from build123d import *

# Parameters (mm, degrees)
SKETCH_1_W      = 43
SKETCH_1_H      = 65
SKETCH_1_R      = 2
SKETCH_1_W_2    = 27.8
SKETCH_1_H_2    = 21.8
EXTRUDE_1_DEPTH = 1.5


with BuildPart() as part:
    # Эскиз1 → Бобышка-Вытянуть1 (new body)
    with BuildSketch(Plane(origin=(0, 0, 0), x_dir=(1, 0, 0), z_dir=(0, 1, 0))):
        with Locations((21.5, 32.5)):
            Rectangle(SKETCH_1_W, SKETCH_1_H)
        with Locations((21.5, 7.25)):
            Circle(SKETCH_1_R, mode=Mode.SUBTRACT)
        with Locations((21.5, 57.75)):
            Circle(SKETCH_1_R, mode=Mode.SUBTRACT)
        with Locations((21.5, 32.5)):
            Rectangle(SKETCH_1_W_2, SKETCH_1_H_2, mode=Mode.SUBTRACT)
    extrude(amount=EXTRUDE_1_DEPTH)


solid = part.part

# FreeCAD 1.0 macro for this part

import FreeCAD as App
import Part
import Sketcher

V = App.Vector
Q = App.Units.Quantity

doc = App.newDocument("Part")
params = doc.addObject("Spreadsheet::Sheet", "Params")
for row, (alias, value) in enumerate([
    ("sketch1_diameter", "4 mm"),
    ("sketch1_width", "43 mm"),
    ("sketch1_height", "65 mm"),
    ("sketch1_width2", "27.8 mm"),
    ("sketch1_height2", "21.8 mm"),
    ("pad1_length", "1.5 mm"),
], start=1):
    params.set(f"A{row}", alias)
    params.set(f"B{row}", "=" + value)
    params.setAlias(f"B{row}", alias)

body = doc.addObject("PartDesign::Body", "Body")

# Sketch on XZ plane
sketch1 = body.newObject("Sketcher::SketchObject", "Sketch")
sketch1.AttachmentSupport = (doc.getObject("XZ_Plane"), [""])
sketch1.MapMode = "FlatFace"
sketch1.addGeometry(Part.LineSegment(V(0, -65, 0), V(0, 0, 0)), False)
sketch1.addGeometry(Part.LineSegment(V(0, 0, 0), V(43, 0, 0)), False)
sketch1.addGeometry(Part.LineSegment(V(43, 0, 0), V(43, -65, 0)), False)
sketch1.addGeometry(Part.LineSegment(V(43, -65, 0), V(0, -65, 0)), False)
sketch1.addGeometry(Part.Circle(V(21.5, -7.2, 0), V(0, 0, 1), 2), False)
sketch1.addGeometry(Part.LineSegment(V(35.4, -21.6, 0), V(7.6, -21.6, 0)), False)
sketch1.addGeometry(Part.LineSegment(V(7.6, -21.6, 0), V(7.6, -43.4, 0)), False)
sketch1.addGeometry(Part.LineSegment(V(7.6, -43.4, 0), V(35.4, -43.4, 0)), False)
sketch1.addGeometry(Part.LineSegment(V(35.4, -43.4, 0), V(35.4, -21.6, 0)), False)
sketch1.addGeometry(Part.Circle(V(21.5, -57.8, 0), V(0, 0, 1), 2), False)
sketch1.addConstraint(Sketcher.Constraint("Coincident", 0, 2, 1, 1))
sketch1.addConstraint(Sketcher.Constraint("Coincident", 1, 2, 2, 1))
sketch1.addConstraint(Sketcher.Constraint("Coincident", 2, 2, 3, 1))
sketch1.addConstraint(Sketcher.Constraint("Coincident", 3, 2, 0, 1))
sketch1.addConstraint(Sketcher.Constraint("Coincident", 5, 2, 6, 1))
sketch1.addConstraint(Sketcher.Constraint("Coincident", 6, 2, 7, 1))
sketch1.addConstraint(Sketcher.Constraint("Coincident", 7, 2, 8, 1))
sketch1.addConstraint(Sketcher.Constraint("Coincident", 8, 2, 5, 1))
sketch1.addConstraint(Sketcher.Constraint("Vertical", 0))
sketch1.addConstraint(Sketcher.Constraint("Horizontal", 1))
sketch1.addConstraint(Sketcher.Constraint("Vertical", 2))
sketch1.addConstraint(Sketcher.Constraint("Horizontal", 3))
sketch1.addConstraint(Sketcher.Constraint("Horizontal", 5))
sketch1.addConstraint(Sketcher.Constraint("Vertical", 6))
sketch1.addConstraint(Sketcher.Constraint("Horizontal", 7))
sketch1.addConstraint(Sketcher.Constraint("Vertical", 8))
sketch1.addConstraint(Sketcher.Constraint("Coincident", 0, 2, -1, 1))
sketch1.addConstraint(Sketcher.Constraint("Equal", 4, 9))
sketch1.addConstraint(Sketcher.Constraint("Vertical", 4, 3, 9, 3))
sketch1.addConstraint(Sketcher.Constraint("Diameter", 4, Q("4 mm")))
sketch1.addConstraint(Sketcher.Constraint("DistanceX", 1, 1, 1, 2, Q("43 mm")))
sketch1.addConstraint(Sketcher.Constraint("DistanceY", 0, 1, 0, 2, Q("65 mm")))
sketch1.addConstraint(Sketcher.Constraint("DistanceX", 5, 2, 5, 1, Q("27.8 mm")))
sketch1.addConstraint(Sketcher.Constraint("DistanceY", 6, 2, 6, 1, Q("21.8 mm")))
sketch1.addConstraint(Sketcher.Constraint("DistanceX", -1, 1, 4, 3, Q("21.5 mm")))
sketch1.addConstraint(Sketcher.Constraint("DistanceX", -1, 1, 5, 2, Q("7.6 mm")))
sketch1.addConstraint(Sketcher.Constraint("DistanceY", 5, 2, -1, 1, Q("21.6 mm")))
sketch1.addConstraint(Sketcher.Constraint("DistanceY", 9, 3, 4, 3, Q("50.5 mm")))
sketch1.addConstraint(Sketcher.Constraint("DistanceY", 4, 3, -1, 1, Q("7.25 mm")))
sketch1.setExpression("Constraints[19]", "Params.sketch1_diameter")
sketch1.setExpression("Constraints[20]", "Params.sketch1_width")
sketch1.setExpression("Constraints[21]", "Params.sketch1_height")
sketch1.setExpression("Constraints[22]", "Params.sketch1_width2")
sketch1.setExpression("Constraints[23]", "Params.sketch1_height2")
pad1 = body.newObject("PartDesign::Pad", "Pad")
pad1.Profile = sketch1
pad1.setExpression("Length", "Params.pad1_length")
pad1.Reversed = True

doc.recompute()
